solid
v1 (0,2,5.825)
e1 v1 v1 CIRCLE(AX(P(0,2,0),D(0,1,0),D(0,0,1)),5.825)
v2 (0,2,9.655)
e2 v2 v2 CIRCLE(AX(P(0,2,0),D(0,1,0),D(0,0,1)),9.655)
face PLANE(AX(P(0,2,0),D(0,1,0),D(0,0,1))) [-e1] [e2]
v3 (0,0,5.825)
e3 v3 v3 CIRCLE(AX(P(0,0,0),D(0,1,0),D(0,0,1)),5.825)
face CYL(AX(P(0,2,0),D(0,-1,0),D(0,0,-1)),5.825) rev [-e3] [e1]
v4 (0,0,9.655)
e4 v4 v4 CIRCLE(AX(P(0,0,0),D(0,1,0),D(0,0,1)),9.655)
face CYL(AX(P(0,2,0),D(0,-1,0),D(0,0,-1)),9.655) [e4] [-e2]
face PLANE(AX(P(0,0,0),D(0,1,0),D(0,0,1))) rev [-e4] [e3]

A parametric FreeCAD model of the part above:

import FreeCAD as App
import Part
import Sketcher

doc = App.newDocument("Part")
body = doc.addObject("PartDesign::Body", "Body")

sketch1 = body.newObject("Sketcher::SketchObject", "Sketch")
sketch1.AttachmentSupport = (doc.getObject("XZ_Plane"), [""])
sketch1.MapMode = "FlatFace"
sketch1.addGeometry(Part.Circle(App.Vector(0, 0, 0), App.Vector(0, 0, 1), 10), False)
sketch1.addGeometry(Part.Circle(App.Vector(0, 0, 0), App.Vector(0, 0, 1), 6), False)
sketch1.addConstraint(Sketcher.Constraint("Coincident", 0, 3, -1, 1))
sketch1.addConstraint(Sketcher.Constraint("Coincident", 1, 3, -1, 1))
sketch1.addConstraint(Sketcher.Constraint("Diameter", 0, 19.31))
sketch1.addConstraint(Sketcher.Constraint("Diameter", 1, 11.65))
pad1 = body.newObject("PartDesign::Pad", "Pad")
pad1.Profile = sketch1
pad1.Length = 2
pad1.Reversed = True

doc.recompute()
